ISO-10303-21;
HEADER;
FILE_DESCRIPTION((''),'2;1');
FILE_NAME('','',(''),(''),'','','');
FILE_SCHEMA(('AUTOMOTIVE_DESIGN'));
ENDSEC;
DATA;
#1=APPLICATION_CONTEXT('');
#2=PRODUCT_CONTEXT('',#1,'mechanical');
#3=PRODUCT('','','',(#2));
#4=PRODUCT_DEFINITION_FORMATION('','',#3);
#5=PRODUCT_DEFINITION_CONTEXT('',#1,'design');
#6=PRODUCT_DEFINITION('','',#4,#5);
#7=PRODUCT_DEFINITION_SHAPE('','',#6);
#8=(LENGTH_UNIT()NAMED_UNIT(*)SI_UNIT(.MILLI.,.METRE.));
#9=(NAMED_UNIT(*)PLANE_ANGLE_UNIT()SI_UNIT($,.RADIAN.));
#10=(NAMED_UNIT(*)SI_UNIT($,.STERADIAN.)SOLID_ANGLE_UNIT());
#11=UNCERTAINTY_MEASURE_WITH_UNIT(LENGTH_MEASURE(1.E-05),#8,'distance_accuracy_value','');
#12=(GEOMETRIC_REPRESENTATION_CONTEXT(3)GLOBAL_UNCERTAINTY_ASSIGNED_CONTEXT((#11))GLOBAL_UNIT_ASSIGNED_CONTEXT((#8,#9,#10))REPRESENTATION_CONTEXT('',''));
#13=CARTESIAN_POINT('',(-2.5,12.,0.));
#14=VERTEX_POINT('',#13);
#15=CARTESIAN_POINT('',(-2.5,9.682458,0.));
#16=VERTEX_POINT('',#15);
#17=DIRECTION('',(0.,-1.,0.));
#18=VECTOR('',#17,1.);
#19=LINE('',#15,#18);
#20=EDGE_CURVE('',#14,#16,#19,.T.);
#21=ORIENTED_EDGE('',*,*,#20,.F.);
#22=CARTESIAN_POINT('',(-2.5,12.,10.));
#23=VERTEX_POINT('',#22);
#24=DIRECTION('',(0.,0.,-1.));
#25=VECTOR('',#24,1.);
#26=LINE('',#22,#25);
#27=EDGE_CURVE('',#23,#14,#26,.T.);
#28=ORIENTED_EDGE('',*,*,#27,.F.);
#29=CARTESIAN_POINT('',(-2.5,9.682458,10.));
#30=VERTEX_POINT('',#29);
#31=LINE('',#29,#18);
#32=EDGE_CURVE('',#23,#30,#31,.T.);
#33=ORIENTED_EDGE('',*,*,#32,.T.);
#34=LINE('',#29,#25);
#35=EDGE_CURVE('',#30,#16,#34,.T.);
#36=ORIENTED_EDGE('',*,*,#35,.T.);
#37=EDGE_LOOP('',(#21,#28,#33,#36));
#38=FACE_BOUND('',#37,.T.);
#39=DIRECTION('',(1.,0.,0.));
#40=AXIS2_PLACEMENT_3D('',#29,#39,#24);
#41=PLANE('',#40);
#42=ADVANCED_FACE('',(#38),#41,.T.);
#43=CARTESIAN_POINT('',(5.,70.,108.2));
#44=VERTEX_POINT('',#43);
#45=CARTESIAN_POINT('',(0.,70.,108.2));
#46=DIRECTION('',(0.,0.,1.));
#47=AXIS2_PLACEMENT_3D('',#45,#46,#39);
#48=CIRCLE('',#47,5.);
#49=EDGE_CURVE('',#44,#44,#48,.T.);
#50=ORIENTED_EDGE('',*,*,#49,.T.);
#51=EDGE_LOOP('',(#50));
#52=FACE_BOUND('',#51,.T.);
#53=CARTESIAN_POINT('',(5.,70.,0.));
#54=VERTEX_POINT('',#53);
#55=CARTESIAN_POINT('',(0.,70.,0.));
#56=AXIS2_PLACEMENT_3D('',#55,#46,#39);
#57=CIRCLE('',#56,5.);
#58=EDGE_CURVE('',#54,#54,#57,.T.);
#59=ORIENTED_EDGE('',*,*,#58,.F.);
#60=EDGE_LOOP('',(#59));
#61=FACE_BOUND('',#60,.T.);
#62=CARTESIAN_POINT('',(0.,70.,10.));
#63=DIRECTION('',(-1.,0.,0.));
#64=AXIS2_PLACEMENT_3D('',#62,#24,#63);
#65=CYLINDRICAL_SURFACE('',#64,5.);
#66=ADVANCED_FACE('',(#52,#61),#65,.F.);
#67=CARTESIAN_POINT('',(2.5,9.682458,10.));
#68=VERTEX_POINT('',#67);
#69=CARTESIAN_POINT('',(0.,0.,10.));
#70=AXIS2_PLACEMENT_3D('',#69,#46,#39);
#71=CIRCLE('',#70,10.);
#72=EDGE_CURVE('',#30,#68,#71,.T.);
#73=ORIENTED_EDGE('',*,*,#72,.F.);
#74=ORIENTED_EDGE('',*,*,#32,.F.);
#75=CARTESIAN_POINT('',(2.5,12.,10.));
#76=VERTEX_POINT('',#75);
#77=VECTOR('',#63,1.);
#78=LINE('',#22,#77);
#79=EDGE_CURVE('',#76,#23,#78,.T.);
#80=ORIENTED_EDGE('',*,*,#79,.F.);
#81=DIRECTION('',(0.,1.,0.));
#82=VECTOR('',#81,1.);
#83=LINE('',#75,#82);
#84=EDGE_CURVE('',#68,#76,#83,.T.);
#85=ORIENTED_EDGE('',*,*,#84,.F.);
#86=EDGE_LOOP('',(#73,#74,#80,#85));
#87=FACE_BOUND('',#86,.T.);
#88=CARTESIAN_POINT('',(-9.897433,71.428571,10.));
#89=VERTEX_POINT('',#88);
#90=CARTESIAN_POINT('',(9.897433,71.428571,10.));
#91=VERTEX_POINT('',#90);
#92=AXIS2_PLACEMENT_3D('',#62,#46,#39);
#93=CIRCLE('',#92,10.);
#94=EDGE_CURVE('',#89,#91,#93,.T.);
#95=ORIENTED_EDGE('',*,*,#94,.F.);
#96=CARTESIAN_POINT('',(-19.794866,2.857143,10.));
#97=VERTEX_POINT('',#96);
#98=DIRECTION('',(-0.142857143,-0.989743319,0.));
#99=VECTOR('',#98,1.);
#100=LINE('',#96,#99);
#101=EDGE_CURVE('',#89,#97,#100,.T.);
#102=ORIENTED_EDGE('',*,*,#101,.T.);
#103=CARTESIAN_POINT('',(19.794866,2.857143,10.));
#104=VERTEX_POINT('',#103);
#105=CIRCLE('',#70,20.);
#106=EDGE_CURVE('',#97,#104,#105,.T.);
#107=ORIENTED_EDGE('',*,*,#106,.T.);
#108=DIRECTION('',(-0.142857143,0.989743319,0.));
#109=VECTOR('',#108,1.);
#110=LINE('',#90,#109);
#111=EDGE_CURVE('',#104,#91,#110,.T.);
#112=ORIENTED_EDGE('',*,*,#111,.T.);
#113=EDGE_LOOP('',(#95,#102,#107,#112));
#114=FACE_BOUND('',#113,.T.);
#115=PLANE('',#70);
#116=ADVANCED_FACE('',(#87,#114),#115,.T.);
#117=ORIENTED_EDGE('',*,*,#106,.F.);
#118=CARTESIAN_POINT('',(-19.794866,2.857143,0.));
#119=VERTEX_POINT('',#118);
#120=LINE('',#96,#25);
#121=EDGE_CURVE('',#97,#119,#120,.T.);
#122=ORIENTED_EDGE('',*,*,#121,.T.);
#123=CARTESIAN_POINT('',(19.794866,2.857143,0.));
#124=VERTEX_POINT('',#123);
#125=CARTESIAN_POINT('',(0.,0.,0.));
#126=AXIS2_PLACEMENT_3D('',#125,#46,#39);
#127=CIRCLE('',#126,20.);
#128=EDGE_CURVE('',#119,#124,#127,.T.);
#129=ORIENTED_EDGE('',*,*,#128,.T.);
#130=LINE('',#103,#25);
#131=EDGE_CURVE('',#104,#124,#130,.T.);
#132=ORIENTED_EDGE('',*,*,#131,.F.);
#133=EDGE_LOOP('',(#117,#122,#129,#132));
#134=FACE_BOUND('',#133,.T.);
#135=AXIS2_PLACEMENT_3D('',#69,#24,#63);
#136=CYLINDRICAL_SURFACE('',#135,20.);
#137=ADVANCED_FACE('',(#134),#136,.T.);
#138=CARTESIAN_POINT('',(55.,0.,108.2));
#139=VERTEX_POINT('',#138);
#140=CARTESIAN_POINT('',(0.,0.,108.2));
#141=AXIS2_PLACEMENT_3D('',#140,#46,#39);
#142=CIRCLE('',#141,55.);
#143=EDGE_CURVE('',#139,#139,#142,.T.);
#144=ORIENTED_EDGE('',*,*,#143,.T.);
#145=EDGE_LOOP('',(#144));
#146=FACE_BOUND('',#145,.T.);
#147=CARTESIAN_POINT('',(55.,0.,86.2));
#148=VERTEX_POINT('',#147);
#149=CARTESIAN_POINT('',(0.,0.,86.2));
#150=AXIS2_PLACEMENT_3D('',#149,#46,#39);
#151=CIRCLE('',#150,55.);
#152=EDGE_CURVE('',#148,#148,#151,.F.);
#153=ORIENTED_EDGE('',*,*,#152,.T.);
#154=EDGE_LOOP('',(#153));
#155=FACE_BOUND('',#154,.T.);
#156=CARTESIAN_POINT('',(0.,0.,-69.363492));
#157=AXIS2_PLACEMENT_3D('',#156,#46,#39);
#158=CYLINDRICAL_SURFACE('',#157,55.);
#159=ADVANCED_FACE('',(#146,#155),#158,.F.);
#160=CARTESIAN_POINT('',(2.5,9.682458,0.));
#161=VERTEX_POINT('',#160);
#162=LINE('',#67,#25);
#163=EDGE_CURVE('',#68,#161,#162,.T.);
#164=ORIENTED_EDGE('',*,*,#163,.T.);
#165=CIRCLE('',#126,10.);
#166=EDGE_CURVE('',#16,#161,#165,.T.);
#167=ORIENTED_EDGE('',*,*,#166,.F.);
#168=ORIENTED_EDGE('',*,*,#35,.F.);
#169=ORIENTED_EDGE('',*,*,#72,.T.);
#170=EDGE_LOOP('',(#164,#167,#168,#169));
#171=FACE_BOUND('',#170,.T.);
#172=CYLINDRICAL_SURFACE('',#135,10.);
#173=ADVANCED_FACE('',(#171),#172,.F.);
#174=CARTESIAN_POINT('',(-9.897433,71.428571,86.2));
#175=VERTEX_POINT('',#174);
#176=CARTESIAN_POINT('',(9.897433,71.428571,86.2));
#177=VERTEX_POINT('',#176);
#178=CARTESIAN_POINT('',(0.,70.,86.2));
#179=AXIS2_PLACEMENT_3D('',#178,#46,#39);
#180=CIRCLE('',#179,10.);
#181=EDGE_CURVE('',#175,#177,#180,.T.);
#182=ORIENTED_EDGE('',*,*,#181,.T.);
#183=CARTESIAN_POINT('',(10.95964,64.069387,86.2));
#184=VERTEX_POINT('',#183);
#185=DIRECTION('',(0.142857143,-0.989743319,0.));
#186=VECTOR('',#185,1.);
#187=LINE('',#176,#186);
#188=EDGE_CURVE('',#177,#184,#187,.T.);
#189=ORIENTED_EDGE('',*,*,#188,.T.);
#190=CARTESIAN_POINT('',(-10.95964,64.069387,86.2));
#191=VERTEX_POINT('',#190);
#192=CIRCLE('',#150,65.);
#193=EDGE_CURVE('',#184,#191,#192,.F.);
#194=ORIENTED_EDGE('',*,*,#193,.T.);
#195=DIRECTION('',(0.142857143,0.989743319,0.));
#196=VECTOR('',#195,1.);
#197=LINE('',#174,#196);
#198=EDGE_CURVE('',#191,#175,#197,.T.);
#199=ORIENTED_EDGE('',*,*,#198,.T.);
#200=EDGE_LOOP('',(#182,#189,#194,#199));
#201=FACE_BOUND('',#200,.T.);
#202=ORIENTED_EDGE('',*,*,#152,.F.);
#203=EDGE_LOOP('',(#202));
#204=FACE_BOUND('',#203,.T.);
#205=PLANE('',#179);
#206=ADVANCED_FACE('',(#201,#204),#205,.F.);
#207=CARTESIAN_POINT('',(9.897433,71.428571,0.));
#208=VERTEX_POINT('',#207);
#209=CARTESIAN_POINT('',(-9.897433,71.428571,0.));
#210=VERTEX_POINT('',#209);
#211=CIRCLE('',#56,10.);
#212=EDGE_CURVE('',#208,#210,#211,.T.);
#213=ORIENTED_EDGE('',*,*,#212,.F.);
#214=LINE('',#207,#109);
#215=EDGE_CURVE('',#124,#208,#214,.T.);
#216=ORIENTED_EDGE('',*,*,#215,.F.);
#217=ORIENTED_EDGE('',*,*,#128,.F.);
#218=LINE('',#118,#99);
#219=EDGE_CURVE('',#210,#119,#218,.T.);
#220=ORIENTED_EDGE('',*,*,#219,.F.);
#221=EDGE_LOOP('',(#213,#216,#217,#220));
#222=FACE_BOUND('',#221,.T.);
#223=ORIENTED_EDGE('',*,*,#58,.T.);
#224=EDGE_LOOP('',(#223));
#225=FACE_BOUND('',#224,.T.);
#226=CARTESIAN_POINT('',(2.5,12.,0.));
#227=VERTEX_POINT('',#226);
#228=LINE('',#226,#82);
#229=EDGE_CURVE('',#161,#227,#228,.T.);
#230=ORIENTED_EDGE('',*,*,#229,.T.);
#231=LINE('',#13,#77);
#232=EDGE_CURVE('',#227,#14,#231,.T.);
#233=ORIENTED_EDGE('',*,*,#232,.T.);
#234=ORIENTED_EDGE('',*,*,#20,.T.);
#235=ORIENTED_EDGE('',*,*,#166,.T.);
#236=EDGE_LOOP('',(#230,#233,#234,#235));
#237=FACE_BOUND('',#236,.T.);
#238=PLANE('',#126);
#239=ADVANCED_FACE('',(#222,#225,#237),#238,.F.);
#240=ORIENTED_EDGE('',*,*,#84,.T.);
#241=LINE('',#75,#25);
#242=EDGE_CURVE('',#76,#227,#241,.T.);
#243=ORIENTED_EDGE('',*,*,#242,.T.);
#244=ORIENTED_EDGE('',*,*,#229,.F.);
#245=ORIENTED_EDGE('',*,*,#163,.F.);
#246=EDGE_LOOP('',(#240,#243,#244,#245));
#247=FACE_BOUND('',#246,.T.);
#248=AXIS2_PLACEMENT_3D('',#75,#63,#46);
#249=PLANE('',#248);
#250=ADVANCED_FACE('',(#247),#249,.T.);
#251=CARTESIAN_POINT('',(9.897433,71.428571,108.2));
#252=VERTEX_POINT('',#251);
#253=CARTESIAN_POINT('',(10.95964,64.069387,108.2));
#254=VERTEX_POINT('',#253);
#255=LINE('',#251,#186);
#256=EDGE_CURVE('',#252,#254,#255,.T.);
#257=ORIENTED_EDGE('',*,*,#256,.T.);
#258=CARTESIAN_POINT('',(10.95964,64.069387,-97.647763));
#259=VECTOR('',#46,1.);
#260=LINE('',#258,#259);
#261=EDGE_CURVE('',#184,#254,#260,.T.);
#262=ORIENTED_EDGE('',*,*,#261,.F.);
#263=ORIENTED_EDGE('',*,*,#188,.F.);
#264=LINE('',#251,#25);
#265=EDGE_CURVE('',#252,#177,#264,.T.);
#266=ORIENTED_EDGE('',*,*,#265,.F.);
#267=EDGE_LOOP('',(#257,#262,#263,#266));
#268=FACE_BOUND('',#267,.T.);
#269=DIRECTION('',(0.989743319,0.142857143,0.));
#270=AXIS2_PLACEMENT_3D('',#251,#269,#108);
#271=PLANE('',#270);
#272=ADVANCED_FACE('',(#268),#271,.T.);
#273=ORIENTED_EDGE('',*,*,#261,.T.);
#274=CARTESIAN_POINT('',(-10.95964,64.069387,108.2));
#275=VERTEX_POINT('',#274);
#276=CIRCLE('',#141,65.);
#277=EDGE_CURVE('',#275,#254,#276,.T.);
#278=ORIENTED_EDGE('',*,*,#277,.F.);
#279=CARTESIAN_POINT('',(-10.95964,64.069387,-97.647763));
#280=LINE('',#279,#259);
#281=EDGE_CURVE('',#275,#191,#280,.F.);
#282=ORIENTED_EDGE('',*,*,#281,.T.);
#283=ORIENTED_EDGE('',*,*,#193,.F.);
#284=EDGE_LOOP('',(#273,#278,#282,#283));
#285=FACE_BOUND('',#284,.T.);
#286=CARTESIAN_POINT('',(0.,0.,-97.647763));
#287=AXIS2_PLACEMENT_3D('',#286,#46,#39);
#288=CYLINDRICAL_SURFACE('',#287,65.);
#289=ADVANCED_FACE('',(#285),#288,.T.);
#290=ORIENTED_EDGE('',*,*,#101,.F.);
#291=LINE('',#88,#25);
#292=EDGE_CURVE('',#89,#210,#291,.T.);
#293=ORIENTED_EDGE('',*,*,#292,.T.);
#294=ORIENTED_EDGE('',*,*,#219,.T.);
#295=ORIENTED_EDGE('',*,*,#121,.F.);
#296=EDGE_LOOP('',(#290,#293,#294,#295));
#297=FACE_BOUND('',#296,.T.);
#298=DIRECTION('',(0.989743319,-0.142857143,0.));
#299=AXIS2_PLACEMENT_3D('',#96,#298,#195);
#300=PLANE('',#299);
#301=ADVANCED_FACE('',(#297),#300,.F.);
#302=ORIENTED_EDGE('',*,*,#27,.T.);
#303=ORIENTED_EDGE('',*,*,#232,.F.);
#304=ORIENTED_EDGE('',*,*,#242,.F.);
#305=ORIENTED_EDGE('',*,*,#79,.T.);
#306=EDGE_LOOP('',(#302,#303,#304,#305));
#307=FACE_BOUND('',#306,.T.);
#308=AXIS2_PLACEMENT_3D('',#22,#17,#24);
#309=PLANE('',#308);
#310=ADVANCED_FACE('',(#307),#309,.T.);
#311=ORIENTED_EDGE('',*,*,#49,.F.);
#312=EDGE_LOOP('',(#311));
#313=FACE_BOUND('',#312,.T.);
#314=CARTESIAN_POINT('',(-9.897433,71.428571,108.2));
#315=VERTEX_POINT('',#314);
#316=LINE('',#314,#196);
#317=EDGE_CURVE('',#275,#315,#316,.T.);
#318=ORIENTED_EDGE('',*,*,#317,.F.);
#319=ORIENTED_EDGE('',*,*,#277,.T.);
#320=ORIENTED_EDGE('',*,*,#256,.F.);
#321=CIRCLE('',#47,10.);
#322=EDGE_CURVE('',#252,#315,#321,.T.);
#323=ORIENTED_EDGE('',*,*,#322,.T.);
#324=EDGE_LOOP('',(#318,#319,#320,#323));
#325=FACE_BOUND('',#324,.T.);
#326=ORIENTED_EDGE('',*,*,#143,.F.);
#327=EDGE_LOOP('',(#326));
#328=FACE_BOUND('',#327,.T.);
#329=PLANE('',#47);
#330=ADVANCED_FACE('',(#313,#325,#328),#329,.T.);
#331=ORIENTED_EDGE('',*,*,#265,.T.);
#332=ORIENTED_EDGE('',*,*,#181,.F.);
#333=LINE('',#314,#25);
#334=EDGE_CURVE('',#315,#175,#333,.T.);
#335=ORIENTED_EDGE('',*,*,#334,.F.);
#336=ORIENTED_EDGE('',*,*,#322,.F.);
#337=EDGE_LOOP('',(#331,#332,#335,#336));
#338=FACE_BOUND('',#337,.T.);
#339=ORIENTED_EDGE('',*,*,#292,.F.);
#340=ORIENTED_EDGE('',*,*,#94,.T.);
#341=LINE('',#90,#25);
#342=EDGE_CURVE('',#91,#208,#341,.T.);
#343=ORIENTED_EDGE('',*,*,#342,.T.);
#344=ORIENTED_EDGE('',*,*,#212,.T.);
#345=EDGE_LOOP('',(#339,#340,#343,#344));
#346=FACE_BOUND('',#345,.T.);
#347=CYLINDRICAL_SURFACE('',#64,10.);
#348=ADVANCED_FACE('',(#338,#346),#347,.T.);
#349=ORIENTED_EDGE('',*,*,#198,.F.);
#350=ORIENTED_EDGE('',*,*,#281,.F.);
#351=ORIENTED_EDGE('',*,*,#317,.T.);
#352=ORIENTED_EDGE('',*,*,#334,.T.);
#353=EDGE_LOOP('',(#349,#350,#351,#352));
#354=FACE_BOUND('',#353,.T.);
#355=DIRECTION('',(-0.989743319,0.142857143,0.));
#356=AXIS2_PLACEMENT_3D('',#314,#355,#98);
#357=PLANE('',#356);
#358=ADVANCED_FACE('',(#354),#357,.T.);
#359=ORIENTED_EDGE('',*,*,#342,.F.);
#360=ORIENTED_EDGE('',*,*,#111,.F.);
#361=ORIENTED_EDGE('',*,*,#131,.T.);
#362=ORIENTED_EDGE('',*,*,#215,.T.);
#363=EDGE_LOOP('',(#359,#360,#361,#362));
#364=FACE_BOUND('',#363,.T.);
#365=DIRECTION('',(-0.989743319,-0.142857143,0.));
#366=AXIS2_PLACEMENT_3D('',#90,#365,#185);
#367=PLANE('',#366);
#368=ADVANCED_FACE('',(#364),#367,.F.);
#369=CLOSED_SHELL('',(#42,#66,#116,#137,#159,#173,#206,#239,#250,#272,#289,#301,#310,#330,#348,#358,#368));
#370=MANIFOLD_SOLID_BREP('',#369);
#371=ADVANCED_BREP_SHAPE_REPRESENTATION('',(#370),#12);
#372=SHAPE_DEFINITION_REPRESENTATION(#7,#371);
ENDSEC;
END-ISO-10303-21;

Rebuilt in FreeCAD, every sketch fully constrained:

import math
import FreeCAD as App
import Part
import Sketcher

doc = App.newDocument("Part")
body = doc.addObject("PartDesign::Body", "Body")

# Sketch on XY plane
sketch1 = body.newObject("Sketcher::SketchObject", "Sketch")
sketch1.AttachmentSupport = (doc.getObject("XY_Plane"), [""])
sketch1.MapMode = "FlatFace"
sketch1.addGeometry(Part.LineSegment(App.Vector(-9.9, 71.4, 0), App.Vector(-19.8, 2.9, 0)), False)
sketch1.addGeometry(Part.ArcOfCircle(Part.Circle(App.Vector(0, 0, 0), App.Vector(0, 0, 1), 20), math.radians(172), math.radians(368)), False)
sketch1.addGeometry(Part.LineSegment(App.Vector(19.8, 2.9, 0), App.Vector(9.9, 71.4, 0)), False)
sketch1.addGeometry(Part.ArcOfCircle(Part.Circle(App.Vector(0, 70, 0), App.Vector(0, 0, 1), 10), math.radians(8), math.radians(172)), False)
sketch1.addGeometry(Part.LineSegment(App.Vector(-2.5, 9.7, 0), App.Vector(-2.5, 12, 0)), False)
sketch1.addGeometry(Part.LineSegment(App.Vector(-2.5, 12, 0), App.Vector(2.5, 12, 0)), False)
sketch1.addGeometry(Part.LineSegment(App.Vector(2.5, 12, 0), App.Vector(2.5, 9.7, 0)), False)
sketch1.addGeometry(Part.ArcOfCircle(Part.Circle(App.Vector(0, 0, 0), App.Vector(0, 0, 1), 10), math.radians(104), math.radians(436)), False)
sketch1.addGeometry(Part.Circle(App.Vector(0, 70, 0), App.Vector(0, 0, 1), 5), False)
sketch1.addConstraint(Sketcher.Constraint("Tangent", 0, 2, 1, 1))
sketch1.addConstraint(Sketcher.Constraint("Tangent", 1, 2, 2, 1))
sketch1.addConstraint(Sketcher.Constraint("Tangent", 2, 2, 3, 1))
sketch1.addConstraint(Sketcher.Constraint("Tangent", 3, 2, 0, 1))
sketch1.addConstraint(Sketcher.Constraint("Coincident", 4, 2, 5, 1))
sketch1.addConstraint(Sketcher.Constraint("Coincident", 5, 2, 6, 1))
sketch1.addConstraint(Sketcher.Constraint("Coincident", 6, 2, 7, 2))
sketch1.addConstraint(Sketcher.Constraint("Coincident", 7, 1, 4, 1))
sketch1.addConstraint(Sketcher.Constraint("Vertical", 4))
sketch1.addConstraint(Sketcher.Constraint("Horizontal", 5))
sketch1.addConstraint(Sketcher.Constraint("Vertical", 6))
sketch1.addConstraint(Sketcher.Constraint("Coincident", 1, 3, -1, 1))
sketch1.addConstraint(Sketcher.Constraint("Coincident", 7, 3, -1, 1))
sketch1.addConstraint(Sketcher.Constraint("Coincident", 8, 3, 3, 3))
sketch1.addConstraint(Sketcher.Constraint("Equal", 3, 7))
sketch1.addConstraint(Sketcher.Constraint("PointOnObject", 3, 3, -2))
sketch1.addConstraint(Sketcher.Constraint("Horizontal", 6, 2, 7, 1))
sketch1.addConstraint(Sketcher.Constraint("Diameter", 8, 10.0))
sketch1.addConstraint(Sketcher.Constraint("Radius", 1, 20.0))
sketch1.addConstraint(Sketcher.Constraint("Radius", 3, 10.0))
sketch1.addConstraint(Sketcher.Constraint("DistanceX", 5, 1, 5, 2, 5.0))
sketch1.addConstraint(Sketcher.Constraint("DistanceY", -1, 1, 3, 3, 70.0))
sketch1.addConstraint(Sketcher.Constraint("DistanceY", -1, 1, 4, 2, 12.0))
pad1 = body.newObject("PartDesign::Pad", "Pad")
pad1.Profile = sketch1
pad1.Length = 10

# Sketch on XY plane
sketch2 = body.newObject("Sketcher::SketchObject", "Sketch001")
sketch2.AttachmentSupport = (doc.getObject("XY_Plane"), [""])
sketch2.MapMode = "FlatFace"
sketch2.AttachmentOffset = App.Placement(App.Vector(0, 0, 10), App.Rotation())
sketch2.addGeometry(Part.Circle(App.Vector(0, 70, 0), App.Vector(0, 0, 1), 10), False)
sketch2.addGeometry(Part.Circle(App.Vector(0, 70, 0), App.Vector(0, 0, 1), 5), False)
sketch2.addConstraint(Sketcher.Constraint("Coincident", 1, 3, 0, 3))
sketch2.addConstraint(Sketcher.Constraint("PointOnObject", 0, 3, -2))
sketch2.addConstraint(Sketcher.Constraint("Diameter", 0, 20.0))
sketch2.addConstraint(Sketcher.Constraint("Diameter", 1, 10.0))
sketch2.addConstraint(Sketcher.Constraint("DistanceY", -1, 1, 0, 3, 70.0))
pad2 = body.newObject("PartDesign::Pad", "Pad001")
pad2.Profile = sketch2
pad2.Length = 76.2

# Sketch on XY plane
sketch3 = body.newObject("Sketcher::SketchObject", "Sketch002")
sketch3.AttachmentSupport = (doc.getObject("XY_Plane"), [""])
sketch3.MapMode = "FlatFace"
sketch3.AttachmentOffset = App.Placement(App.Vector(0, 0, 86.2), App.Rotation())
sketch3.addGeometry(Part.LineSegment(App.Vector(-9.9, 71.4, 0), App.Vector(-19.8, 2.9, 0)), False)
sketch3.addGeometry(Part.ArcOfCircle(Part.Circle(App.Vector(0, 0, 0), App.Vector(0, 0, 1), 20), math.radians(172), math.radians(368)), False)
sketch3.addGeometry(Part.LineSegment(App.Vector(19.8, 2.9, 0), App.Vector(9.9, 71.4, 0)), False)
sketch3.addGeometry(Part.ArcOfCircle(Part.Circle(App.Vector(0, 70, 0), App.Vector(0, 0, 1), 10), math.radians(8), math.radians(172)), False)
sketch3.addGeometry(Part.LineSegment(App.Vector(-2.5, 9.7, 0), App.Vector(-2.5, 12, 0)), False)
sketch3.addGeometry(Part.LineSegment(App.Vector(-2.5, 12, 0), App.Vector(2.5, 12, 0)), False)
sketch3.addGeometry(Part.LineSegment(App.Vector(2.5, 12, 0), App.Vector(2.5, 9.7, 0)), False)
sketch3.addGeometry(Part.ArcOfCircle(Part.Circle(App.Vector(0, 0, 0), App.Vector(0, 0, 1), 10), math.radians(104), math.radians(436)), False)
sketch3.addGeometry(Part.Circle(App.Vector(0, 70, 0), App.Vector(0, 0, 1), 5), False)
sketch3.addConstraint(Sketcher.Constraint("Tangent", 0, 2, 1, 1))
sketch3.addConstraint(Sketcher.Constraint("Tangent", 1, 2, 2, 1))
sketch3.addConstraint(Sketcher.Constraint("Tangent", 2, 2, 3, 1))
sketch3.addConstraint(Sketcher.Constraint("Tangent", 3, 2, 0, 1))
sketch3.addConstraint(Sketcher.Constraint("Coincident", 4, 2, 5, 1))
sketch3.addConstraint(Sketcher.Constraint("Coincident", 5, 2, 6, 1))
sketch3.addConstraint(Sketcher.Constraint("Coincident", 6, 2, 7, 2))
sketch3.addConstraint(Sketcher.Constraint("Coincident", 7, 1, 4, 1))
sketch3.addConstraint(Sketcher.Constraint("Vertical", 4))
sketch3.addConstraint(Sketcher.Constraint("Horizontal", 5))
sketch3.addConstraint(Sketcher.Constraint("Vertical", 6))
sketch3.addConstraint(Sketcher.Constraint("Coincident", 1, 3, -1, 1))
sketch3.addConstraint(Sketcher.Constraint("Coincident", 7, 3, -1, 1))
sketch3.addConstraint(Sketcher.Constraint("Coincident", 8, 3, 3, 3))
sketch3.addConstraint(Sketcher.Constraint("Equal", 3, 7))
sketch3.addConstraint(Sketcher.Constraint("PointOnObject", 3, 3, -2))
sketch3.addConstraint(Sketcher.Constraint("Horizontal", 6, 2, 7, 1))
sketch3.addConstraint(Sketcher.Constraint("Diameter", 8, 10.0))
sketch3.addConstraint(Sketcher.Constraint("Radius", 1, 20.0))
sketch3.addConstraint(Sketcher.Constraint("Radius", 3, 10.0))
sketch3.addConstraint(Sketcher.Constraint("DistanceX", 5, 1, 5, 2, 5.0))
sketch3.addConstraint(Sketcher.Constraint("DistanceY", -1, 1, 3, 3, 70.0))
sketch3.addConstraint(Sketcher.Constraint("DistanceY", -1, 1, 4, 2, 12.0))
pad3 = body.newObject("PartDesign::Pad", "Pad002")
pad3.Profile = sketch3
pad3.Length = 22

# Sketch on XY plane
sketch4 = body.newObject("Sketcher::SketchObject", "Sketch003")
sketch4.AttachmentSupport = (doc.getObject("XY_Plane"), [""])
sketch4.MapMode = "FlatFace"
sketch4.AttachmentOffset = App.Placement(App.Vector(0, 0, 108.2), App.Rotation())
sketch4.addGeometry(Part.Circle(App.Vector(0, 0, 0), App.Vector(0, 0, 1), 65), False)
sketch4.addConstraint(Sketcher.Constraint("Coincident", 0, 3, -1, 1))
sketch4.addConstraint(Sketcher.Constraint("Diameter", 0, 130.0))
pad4 = body.newObject("PartDesign::Pad", "Pad003")
pad4.Profile = sketch4
pad4.Length = 22
pad4.Reversed = True

# Sketch on XY plane
sketch5 = body.newObject("Sketcher::SketchObject", "Sketch004")
sketch5.AttachmentSupport = (doc.getObject("XY_Plane"), [""])
sketch5.MapMode = "FlatFace"
sketch5.AttachmentOffset = App.Placement(App.Vector(0, 0, 108.2), App.Rotation())
sketch5.addGeometry(Part.Circle(App.Vector(0, 0, 0), App.Vector(0, 0, 1), 55), False)
sketch5.addConstraint(Sketcher.Constraint("Coincident", 0, 3, -1, 1))
sketch5.addConstraint(Sketcher.Constraint("Diameter", 0, 110.0))
pocket1 = body.newObject("PartDesign::Pocket", "Pocket")
pocket1.Profile = sketch5
pocket1.Length = 22

doc.recompute()
